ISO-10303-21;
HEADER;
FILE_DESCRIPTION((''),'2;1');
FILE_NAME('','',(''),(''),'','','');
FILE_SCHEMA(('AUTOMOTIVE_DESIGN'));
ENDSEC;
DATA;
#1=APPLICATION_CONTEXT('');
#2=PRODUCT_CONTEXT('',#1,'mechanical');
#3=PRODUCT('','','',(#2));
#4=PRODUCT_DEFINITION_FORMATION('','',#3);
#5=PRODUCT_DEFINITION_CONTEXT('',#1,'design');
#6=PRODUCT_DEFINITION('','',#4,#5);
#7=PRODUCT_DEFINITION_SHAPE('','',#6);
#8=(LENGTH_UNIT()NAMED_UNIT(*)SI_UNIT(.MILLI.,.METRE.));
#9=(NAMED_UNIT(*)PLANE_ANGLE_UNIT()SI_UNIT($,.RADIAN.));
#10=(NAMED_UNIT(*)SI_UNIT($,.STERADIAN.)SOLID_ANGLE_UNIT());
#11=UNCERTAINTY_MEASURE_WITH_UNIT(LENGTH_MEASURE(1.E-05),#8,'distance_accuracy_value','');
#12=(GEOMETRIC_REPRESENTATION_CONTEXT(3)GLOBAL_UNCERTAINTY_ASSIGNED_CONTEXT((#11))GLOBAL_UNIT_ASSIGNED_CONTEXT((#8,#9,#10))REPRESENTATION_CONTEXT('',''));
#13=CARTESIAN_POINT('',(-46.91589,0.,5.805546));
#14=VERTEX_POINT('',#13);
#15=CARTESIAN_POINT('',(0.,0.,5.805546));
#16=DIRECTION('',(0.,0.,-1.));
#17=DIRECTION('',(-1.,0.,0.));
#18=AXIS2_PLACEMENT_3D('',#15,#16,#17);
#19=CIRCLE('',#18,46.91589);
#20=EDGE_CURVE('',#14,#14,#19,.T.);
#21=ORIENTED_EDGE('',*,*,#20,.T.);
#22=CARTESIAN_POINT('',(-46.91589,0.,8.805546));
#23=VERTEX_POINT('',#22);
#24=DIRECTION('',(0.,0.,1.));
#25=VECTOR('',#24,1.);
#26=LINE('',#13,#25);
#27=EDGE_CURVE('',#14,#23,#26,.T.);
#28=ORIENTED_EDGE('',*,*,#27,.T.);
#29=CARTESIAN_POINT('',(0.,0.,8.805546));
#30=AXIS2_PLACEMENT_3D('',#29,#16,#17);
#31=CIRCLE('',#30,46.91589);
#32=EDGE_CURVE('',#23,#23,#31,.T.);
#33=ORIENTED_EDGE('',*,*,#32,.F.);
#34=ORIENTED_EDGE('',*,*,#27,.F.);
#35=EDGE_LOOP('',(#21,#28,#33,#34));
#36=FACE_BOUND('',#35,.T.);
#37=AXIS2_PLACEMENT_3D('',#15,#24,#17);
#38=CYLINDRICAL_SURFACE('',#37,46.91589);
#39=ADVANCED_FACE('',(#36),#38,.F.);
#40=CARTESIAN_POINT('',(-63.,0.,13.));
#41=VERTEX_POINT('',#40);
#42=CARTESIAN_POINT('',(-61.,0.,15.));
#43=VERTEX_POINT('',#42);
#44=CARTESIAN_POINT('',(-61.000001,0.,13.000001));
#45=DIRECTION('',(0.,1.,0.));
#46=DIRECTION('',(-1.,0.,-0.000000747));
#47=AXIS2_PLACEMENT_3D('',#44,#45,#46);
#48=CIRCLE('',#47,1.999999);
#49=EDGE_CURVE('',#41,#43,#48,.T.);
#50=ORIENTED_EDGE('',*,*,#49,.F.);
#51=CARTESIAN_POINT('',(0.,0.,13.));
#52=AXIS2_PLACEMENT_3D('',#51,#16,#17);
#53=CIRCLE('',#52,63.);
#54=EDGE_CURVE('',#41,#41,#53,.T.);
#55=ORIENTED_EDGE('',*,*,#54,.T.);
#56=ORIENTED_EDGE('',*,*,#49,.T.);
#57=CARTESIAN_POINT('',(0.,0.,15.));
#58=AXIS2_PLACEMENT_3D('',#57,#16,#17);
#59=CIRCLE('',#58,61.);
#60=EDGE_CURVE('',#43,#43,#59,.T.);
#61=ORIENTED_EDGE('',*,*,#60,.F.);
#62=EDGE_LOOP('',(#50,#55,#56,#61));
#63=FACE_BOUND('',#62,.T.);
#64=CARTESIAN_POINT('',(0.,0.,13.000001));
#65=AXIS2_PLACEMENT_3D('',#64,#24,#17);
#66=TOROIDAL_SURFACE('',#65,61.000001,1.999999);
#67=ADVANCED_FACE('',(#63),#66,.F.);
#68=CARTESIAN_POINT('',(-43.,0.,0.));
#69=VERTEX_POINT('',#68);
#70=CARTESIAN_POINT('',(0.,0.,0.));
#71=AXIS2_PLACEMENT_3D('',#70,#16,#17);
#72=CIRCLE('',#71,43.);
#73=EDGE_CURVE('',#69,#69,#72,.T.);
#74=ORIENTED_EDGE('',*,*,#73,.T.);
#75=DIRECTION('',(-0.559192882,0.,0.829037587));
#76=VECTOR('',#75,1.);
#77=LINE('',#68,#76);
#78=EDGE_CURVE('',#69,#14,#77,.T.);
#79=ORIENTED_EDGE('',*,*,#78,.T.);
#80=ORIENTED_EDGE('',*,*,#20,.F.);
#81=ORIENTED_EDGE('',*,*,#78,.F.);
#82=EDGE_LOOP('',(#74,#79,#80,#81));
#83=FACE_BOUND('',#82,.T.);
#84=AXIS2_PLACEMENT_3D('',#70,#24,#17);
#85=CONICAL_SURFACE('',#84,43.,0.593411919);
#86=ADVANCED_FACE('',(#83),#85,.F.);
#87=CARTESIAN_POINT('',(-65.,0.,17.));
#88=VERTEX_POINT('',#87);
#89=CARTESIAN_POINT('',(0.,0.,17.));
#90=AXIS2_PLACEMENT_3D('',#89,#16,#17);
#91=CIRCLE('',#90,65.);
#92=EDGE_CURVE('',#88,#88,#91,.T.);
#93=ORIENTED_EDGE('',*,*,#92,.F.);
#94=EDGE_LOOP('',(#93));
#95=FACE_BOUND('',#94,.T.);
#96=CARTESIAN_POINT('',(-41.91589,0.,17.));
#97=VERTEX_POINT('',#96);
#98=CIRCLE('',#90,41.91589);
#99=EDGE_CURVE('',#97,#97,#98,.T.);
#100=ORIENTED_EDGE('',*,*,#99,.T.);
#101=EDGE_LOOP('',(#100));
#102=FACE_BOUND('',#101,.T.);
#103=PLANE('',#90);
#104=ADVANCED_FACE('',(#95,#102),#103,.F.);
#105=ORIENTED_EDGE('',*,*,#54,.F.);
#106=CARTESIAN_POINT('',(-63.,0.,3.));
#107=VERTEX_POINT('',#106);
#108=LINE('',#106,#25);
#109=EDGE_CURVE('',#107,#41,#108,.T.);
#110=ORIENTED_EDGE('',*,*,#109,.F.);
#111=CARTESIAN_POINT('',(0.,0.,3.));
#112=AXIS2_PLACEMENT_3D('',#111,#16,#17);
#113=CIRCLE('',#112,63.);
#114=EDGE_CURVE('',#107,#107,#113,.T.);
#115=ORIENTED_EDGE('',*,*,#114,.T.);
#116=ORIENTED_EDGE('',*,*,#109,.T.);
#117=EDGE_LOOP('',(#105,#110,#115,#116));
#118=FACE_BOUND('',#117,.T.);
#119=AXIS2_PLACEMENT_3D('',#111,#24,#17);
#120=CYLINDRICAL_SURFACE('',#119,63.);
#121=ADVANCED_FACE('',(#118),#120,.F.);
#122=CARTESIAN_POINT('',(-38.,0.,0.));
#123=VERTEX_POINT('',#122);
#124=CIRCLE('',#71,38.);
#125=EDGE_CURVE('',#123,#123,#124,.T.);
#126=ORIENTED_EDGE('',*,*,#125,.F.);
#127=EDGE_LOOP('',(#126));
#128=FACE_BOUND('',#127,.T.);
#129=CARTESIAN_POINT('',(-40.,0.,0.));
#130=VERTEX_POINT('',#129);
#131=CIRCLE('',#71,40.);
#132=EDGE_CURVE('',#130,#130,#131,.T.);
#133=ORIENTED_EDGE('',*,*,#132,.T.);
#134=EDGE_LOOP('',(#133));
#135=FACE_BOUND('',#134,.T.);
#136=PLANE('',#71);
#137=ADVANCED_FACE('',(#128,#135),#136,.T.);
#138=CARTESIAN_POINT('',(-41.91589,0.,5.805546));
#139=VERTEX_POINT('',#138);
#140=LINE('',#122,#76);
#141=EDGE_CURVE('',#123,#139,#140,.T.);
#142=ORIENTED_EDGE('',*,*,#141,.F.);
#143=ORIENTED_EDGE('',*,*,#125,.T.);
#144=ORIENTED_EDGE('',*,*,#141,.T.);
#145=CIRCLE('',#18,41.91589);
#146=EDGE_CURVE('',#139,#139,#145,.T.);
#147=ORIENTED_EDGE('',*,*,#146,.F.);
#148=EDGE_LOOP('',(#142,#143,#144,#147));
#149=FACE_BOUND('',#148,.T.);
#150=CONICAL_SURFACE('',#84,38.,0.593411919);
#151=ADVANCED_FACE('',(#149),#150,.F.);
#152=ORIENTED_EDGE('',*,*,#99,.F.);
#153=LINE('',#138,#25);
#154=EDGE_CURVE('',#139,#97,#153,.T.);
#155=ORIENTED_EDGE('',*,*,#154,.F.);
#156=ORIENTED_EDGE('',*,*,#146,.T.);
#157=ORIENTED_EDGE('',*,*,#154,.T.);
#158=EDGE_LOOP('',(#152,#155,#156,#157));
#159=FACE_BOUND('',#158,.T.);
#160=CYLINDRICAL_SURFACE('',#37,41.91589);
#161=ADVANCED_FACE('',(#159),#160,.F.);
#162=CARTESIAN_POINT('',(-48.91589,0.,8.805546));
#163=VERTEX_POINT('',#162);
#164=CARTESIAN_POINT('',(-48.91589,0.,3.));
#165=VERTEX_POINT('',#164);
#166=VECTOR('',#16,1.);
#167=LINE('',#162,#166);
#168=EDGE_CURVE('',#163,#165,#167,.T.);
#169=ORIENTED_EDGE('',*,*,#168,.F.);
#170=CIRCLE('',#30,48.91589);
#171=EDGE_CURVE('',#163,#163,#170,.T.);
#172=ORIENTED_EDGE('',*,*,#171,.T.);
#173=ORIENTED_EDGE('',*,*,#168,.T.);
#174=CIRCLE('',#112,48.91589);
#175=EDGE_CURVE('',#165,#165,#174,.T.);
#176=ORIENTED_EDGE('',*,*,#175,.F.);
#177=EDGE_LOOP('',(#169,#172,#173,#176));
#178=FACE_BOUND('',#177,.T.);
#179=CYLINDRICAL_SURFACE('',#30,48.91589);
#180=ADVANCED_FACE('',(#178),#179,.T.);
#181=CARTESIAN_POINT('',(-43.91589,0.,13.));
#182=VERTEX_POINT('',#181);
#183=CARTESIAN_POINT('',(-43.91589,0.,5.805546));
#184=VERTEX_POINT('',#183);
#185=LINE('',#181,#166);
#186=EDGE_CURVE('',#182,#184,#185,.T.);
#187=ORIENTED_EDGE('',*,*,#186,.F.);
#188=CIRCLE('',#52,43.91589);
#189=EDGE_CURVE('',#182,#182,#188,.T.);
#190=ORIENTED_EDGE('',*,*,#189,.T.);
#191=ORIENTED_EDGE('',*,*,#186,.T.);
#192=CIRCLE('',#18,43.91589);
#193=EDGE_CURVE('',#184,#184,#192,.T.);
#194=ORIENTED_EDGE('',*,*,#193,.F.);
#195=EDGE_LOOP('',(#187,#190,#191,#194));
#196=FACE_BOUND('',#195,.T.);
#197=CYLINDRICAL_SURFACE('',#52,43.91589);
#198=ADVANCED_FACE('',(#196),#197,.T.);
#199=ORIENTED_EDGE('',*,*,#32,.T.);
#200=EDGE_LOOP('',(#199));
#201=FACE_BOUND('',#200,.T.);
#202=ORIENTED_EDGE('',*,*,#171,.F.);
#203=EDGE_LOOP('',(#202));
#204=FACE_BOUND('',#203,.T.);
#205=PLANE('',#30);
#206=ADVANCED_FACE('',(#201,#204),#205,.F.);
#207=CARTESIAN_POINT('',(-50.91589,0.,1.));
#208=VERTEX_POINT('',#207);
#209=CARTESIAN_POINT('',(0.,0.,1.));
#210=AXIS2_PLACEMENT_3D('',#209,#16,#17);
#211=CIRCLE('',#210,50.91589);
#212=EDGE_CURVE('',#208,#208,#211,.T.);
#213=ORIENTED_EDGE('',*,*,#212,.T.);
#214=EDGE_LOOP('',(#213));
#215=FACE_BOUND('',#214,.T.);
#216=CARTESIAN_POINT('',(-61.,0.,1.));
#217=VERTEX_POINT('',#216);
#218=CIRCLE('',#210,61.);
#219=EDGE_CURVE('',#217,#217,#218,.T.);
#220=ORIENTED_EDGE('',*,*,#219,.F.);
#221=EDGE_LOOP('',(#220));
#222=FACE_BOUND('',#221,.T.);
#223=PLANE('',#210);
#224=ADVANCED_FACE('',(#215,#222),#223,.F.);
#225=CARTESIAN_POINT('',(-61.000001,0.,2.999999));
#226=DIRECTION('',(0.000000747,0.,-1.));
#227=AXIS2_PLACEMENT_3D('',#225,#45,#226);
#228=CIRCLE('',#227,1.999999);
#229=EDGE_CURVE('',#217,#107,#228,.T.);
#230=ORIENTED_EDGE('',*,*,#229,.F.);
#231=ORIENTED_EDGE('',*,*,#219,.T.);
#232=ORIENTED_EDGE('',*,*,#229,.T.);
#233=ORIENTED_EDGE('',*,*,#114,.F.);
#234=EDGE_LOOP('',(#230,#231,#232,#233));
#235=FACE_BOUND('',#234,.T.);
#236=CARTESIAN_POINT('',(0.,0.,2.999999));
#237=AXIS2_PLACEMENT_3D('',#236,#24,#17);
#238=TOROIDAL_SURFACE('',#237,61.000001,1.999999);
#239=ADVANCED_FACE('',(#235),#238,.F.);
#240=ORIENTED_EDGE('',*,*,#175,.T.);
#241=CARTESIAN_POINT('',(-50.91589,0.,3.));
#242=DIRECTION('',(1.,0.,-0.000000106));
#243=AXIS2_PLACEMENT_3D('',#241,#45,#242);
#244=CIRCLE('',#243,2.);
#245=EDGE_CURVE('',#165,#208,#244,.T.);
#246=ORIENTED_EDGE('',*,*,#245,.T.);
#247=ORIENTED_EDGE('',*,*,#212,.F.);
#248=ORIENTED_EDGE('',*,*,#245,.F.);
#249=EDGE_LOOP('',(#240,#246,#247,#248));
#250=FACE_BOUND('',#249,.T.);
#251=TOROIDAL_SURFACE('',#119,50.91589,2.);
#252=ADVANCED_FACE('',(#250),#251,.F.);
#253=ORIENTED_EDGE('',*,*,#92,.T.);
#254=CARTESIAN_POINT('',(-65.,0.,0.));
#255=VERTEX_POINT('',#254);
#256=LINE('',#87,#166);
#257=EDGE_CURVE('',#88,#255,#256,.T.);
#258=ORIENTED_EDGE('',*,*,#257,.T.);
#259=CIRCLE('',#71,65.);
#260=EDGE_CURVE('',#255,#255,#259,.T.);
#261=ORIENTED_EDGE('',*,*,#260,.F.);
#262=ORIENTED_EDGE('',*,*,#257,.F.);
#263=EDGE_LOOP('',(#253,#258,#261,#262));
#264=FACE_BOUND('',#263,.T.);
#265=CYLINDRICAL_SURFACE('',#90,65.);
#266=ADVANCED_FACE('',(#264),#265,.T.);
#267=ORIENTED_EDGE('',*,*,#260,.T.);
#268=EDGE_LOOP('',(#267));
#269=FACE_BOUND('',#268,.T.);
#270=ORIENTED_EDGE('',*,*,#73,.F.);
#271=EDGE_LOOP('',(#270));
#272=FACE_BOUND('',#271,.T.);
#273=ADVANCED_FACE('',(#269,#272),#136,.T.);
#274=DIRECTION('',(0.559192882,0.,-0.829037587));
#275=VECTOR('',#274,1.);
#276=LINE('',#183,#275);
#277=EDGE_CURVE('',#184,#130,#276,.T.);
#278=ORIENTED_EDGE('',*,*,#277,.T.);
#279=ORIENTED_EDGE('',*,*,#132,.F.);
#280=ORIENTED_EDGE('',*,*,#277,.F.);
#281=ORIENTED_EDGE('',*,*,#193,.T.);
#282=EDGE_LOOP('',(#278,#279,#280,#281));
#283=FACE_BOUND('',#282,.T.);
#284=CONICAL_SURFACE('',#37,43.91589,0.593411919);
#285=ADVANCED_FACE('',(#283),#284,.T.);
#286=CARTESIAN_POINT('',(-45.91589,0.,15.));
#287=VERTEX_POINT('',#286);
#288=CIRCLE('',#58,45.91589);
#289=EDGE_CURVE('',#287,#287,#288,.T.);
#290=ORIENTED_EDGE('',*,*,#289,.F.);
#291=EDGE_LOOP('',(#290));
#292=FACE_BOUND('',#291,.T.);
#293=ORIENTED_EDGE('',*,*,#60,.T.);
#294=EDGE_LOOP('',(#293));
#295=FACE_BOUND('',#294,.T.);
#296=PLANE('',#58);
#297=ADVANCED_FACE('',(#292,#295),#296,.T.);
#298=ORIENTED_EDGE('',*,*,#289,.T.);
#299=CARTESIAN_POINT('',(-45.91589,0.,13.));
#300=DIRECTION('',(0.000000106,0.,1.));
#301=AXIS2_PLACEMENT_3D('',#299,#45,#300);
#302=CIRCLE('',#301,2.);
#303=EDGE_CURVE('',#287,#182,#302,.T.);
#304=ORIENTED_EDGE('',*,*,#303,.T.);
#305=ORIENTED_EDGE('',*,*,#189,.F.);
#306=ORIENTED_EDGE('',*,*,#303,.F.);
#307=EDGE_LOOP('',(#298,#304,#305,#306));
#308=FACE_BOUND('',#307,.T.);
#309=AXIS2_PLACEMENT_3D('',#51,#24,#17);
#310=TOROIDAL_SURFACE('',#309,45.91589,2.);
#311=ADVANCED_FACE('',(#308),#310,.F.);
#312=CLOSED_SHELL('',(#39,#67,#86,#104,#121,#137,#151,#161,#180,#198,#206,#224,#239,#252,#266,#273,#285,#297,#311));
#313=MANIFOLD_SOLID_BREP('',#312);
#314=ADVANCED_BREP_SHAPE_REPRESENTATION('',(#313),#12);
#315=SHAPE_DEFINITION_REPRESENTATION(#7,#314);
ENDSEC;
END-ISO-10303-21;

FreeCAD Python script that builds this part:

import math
import FreeCAD as App
import Part
import Sketcher
Q = App.Units.Quantity

doc = App.newDocument("Part")
body = doc.addObject("PartDesign::Body", "Body")

sketch1 = doc.addObject("Sketcher::SketchObject", "Sketch")
body.addObject(sketch1)
sketch1.AttachmentSupport = (doc.XZ_Plane, [""])
sketch1.MapMode = "FlatFace"
sketch1.addGeometry([
    Part.LineSegment(App.Vector(-40, 0, 0), App.Vector(-38, 0, 0)),
    Part.LineSegment(App.Vector(-38, 0, 0), App.Vector(-41.9, 5.8, 0)),
    Part.LineSegment(App.Vector(-41.9, 5.8, 0), App.Vector(-41.9, 17, 0)),
    Part.LineSegment(App.Vector(-41.9, 17, 0), App.Vector(-65, 17, 0)),
    Part.LineSegment(App.Vector(-65, 17, 0), App.Vector(-65, 0, 0)),
    Part.LineSegment(App.Vector(-65, 0, 0), App.Vector(-43, 0, 0)),
    Part.LineSegment(App.Vector(-43, 0, 0), App.Vector(-46.9, 5.8, 0)),
    Part.LineSegment(App.Vector(-46.9, 5.8, 0), App.Vector(-46.9, 8.8, 0)),
    Part.LineSegment(App.Vector(-46.9, 8.8, 0), App.Vector(-48.9, 8.8, 0)),
    Part.LineSegment(App.Vector(-48.9, 8.8, 0), App.Vector(-48.9, 3, 0)),
    Part.ArcOfCircle(Part.Circle(App.Vector(-50.9, 3, 0), App.Vector(0, 0, 1), 2), math.radians(-90), math.radians(0)),
    Part.LineSegment(App.Vector(-50.9, 1, 0), App.Vector(-61, 1, 0)),
    Part.ArcOfCircle(Part.Circle(App.Vector(-61, 3, 0), App.Vector(0, 0, 1), 2), math.radians(180), math.radians(270)),
    Part.LineSegment(App.Vector(-63, 3, 0), App.Vector(-63, 13, 0)),
    Part.ArcOfCircle(Part.Circle(App.Vector(-61, 13, 0), App.Vector(0, 0, 1), 2), math.radians(90), math.radians(180)),
    Part.LineSegment(App.Vector(-61, 15, 0), App.Vector(-45.9, 15, 0)),
    Part.ArcOfCircle(Part.Circle(App.Vector(-45.9, 13, 0), App.Vector(0, 0, 1), 2), math.radians(0), math.radians(90)),
    Part.LineSegment(App.Vector(-43.9, 13, 0), App.Vector(-43.9, 5.8, 0)),
    Part.LineSegment(App.Vector(-43.9, 5.8, 0), App.Vector(-40, 0, 0)),
], False)
sketch1.addConstraint([
    Sketcher.Constraint("Coincident", 0, 2, 1, 1),
    Sketcher.Constraint("Coincident", 1, 2, 2, 1),
    Sketcher.Constraint("Coincident", 2, 2, 3, 1),
    Sketcher.Constraint("Coincident", 3, 2, 4, 1),
    Sketcher.Constraint("Coincident", 4, 2, 5, 1),
    Sketcher.Constraint("Coincident", 5, 2, 6, 1),
    Sketcher.Constraint("Coincident", 6, 2, 7, 1),
    Sketcher.Constraint("Coincident", 7, 2, 8, 1),
    Sketcher.Constraint("Coincident", 8, 2, 9, 1),
    Sketcher.Constraint("Tangent", 9, 2, 10, 2),
    Sketcher.Constraint("Tangent", 10, 1, 11, 1),
    Sketcher.Constraint("Tangent", 11, 2, 12, 2),
    Sketcher.Constraint("Tangent", 12, 1, 13, 1),
    Sketcher.Constraint("Tangent", 13, 2, 14, 2),
    Sketcher.Constraint("Tangent", 14, 1, 15, 1),
    Sketcher.Constraint("Tangent", 15, 2, 16, 2),
    Sketcher.Constraint("Tangent", 16, 1, 17, 1),
    Sketcher.Constraint("Coincident", 17, 2, 18, 1),
    Sketcher.Constraint("Coincident", 18, 2, 0, 1),
    Sketcher.Constraint("Horizontal", 0),
    Sketcher.Constraint("Vertical", 2),
    Sketcher.Constraint("Horizontal", 3),
    Sketcher.Constraint("Vertical", 4),
    Sketcher.Constraint("Horizontal", 5),
    Sketcher.Constraint("Vertical", 7),
    Sketcher.Constraint("Horizontal", 8),
    Sketcher.Constraint("Vertical", 9),
    Sketcher.Constraint("Horizontal", 11),
    Sketcher.Constraint("Vertical", 13),
    Sketcher.Constraint("Horizontal", 15),
    Sketcher.Constraint("Vertical", 17),
    Sketcher.Constraint("Equal", 10, 12),
    Sketcher.Constraint("Equal", 12, 14),
    Sketcher.Constraint("Equal", 14, 16),
    Sketcher.Constraint("PointOnObject", 0, 2, -1),
    Sketcher.Constraint("PointOnObject", 4, 2, -1),
    Sketcher.Constraint("Parallel", 1, 6),
    Sketcher.Constraint("Parallel", 6, 18),
    Sketcher.Constraint("Horizontal", 1, 2, 6, 2),
    Sketcher.Constraint("Horizontal", 6, 2, 17, 2),
    Sketcher.Constraint("Equal", 0, 8),
    Sketcher.Constraint("Radius", 10, 2.0),
    Sketcher.Constraint("DistanceX", 0, 1, 0, 2, 2.0),
    Sketcher.Constraint("DistanceX", 5, 1, 5, 2, 22.0),
    Sketcher.Constraint("DistanceY", 4, 2, 4, 1, 17.0),
    Sketcher.Constraint("DistanceY", 7, 1, 7, 2, 3.0),
    Sketcher.Constraint("DistanceY", 13, 1, 13, 2, 10.0),
    Sketcher.Constraint("Angle", 1, Q("123.999998 deg")),
    Sketcher.Constraint("DistanceY", -1, 1, 10, 3, 3.0),
    Sketcher.Constraint("DistanceX", 12, 3, -1, 1, 61.000001),
    Sketcher.Constraint("DistanceX", 0, 2, -1, 1, 38.0),
    Sketcher.Constraint("DistanceX", 3, 2, -1, 1, 65.0),
    Sketcher.Constraint("DistanceX", 3, 2, 3, 1, 23.08411),
])
revolution = doc.addObject("PartDesign::Revolution", "Revolution")
body.addObject(revolution)
revolution.Profile = sketch1
revolution.ReferenceAxis = (sketch1, ["V_Axis"])
revolution.Angle = 360

doc.recompute()
